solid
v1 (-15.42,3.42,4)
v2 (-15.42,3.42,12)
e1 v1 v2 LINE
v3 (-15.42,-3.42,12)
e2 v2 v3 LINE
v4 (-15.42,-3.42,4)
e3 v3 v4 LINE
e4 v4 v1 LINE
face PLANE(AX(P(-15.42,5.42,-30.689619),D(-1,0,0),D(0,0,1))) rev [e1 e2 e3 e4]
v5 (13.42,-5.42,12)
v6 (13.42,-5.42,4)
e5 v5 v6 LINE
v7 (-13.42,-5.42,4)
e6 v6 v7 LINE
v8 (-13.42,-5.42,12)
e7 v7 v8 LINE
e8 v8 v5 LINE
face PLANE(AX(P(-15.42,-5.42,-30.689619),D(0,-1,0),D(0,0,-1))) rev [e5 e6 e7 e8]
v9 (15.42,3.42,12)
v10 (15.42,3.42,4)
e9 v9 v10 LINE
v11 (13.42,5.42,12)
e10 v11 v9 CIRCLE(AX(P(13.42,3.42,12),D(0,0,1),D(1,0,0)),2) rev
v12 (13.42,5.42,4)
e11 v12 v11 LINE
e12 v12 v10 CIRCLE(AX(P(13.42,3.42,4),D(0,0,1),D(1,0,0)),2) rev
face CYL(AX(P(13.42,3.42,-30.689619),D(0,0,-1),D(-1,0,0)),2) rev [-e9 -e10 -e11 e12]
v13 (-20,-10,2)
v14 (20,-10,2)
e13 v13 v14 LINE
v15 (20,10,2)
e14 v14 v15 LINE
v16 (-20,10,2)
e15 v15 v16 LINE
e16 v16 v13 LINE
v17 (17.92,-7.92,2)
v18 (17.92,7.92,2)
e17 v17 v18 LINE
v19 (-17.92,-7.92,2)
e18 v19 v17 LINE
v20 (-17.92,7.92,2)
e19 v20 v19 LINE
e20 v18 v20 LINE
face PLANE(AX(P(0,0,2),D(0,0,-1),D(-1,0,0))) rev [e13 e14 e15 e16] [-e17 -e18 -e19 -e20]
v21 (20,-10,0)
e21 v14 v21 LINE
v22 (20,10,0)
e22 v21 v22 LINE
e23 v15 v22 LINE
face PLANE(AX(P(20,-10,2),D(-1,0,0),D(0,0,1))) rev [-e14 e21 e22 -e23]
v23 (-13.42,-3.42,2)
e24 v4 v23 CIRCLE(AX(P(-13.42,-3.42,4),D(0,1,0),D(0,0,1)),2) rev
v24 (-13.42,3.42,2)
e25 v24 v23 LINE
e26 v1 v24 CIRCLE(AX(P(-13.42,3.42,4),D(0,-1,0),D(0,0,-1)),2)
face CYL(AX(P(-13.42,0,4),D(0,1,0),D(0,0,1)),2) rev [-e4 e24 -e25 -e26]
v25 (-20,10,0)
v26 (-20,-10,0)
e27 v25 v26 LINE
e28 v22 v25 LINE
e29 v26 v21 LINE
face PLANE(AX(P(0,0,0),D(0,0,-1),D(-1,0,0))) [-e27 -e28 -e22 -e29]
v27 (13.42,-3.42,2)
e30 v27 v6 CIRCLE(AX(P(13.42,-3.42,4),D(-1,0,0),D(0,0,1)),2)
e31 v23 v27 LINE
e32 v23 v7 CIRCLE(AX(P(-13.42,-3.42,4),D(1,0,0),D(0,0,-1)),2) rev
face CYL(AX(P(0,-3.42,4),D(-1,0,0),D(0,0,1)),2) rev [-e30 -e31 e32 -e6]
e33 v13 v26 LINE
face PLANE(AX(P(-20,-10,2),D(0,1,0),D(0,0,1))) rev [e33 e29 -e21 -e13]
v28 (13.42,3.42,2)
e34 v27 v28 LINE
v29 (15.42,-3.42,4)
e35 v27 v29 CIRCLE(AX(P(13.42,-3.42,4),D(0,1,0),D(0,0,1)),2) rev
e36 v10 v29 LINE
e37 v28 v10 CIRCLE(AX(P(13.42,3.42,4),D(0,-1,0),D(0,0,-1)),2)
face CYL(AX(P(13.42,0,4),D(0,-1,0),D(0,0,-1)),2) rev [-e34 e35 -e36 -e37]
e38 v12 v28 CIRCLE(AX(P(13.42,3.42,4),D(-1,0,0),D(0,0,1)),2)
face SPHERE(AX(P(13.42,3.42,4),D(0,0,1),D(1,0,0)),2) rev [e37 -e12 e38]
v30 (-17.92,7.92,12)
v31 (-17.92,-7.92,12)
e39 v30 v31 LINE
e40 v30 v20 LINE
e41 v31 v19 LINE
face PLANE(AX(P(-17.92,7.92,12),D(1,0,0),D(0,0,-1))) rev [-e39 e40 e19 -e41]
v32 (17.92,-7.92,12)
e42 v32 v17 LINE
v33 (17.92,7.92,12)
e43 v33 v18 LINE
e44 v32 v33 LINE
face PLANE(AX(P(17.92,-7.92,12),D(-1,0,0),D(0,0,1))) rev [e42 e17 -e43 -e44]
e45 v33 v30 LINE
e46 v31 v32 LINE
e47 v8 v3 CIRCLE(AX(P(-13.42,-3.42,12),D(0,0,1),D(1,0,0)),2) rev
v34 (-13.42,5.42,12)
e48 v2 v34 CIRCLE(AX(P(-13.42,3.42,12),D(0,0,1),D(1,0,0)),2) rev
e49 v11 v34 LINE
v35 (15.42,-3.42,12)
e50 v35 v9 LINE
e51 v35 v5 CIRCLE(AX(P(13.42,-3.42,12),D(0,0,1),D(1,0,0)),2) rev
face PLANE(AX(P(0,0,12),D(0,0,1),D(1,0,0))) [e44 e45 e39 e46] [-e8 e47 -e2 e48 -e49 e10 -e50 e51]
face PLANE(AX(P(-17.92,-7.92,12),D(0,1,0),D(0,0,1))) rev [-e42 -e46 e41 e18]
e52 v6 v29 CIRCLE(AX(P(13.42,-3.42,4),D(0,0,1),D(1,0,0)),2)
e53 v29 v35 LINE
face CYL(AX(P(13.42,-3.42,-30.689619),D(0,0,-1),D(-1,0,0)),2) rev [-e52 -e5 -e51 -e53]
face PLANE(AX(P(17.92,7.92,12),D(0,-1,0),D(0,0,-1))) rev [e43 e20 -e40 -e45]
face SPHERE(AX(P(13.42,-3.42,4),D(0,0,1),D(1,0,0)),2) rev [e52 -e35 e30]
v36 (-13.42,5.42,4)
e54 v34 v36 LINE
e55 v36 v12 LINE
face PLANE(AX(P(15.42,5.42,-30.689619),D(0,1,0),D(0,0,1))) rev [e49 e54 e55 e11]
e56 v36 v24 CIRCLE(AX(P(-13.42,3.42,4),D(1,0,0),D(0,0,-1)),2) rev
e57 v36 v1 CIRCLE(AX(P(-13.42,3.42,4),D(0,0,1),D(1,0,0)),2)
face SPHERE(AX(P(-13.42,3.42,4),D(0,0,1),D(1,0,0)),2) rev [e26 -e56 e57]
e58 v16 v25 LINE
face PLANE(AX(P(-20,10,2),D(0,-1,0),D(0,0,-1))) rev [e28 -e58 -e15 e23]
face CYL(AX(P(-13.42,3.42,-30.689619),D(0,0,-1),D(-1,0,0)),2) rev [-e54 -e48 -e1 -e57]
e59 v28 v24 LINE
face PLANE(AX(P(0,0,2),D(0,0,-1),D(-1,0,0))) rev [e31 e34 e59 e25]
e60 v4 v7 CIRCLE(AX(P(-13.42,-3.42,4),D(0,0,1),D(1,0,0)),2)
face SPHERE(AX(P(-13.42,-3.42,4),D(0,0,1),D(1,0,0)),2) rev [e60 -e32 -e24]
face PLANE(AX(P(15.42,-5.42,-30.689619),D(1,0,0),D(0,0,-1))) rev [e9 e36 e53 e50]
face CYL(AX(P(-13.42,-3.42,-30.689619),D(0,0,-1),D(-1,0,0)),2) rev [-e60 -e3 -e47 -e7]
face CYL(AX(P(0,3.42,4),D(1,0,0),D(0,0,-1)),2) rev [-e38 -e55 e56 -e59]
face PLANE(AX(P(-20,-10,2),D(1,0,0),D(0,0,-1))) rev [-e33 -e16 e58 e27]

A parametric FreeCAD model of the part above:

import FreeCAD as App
import Part
import Sketcher


def edges_at(feature, points):
    """Names of the edges that pass closest to the given points."""
    edges = feature.Shape.Edges
    near = lambda p: min(range(len(edges)), key=lambda i: edges[i].distToShape(Part.Vertex(*p))[0])
    return sorted({f"Edge{near(p) + 1}" for p in points})


def add_polygon(sketch, points):
    """Adds a closed chain of lines whose ends are joined by coincident constraints."""
    first, n = sketch.GeometryCount, len(points)
    for a, b in zip(points, points[1:] + points[:1]):
        sketch.addGeometry(Part.LineSegment(App.Vector(*a, 0), App.Vector(*b, 0)), False)
    for i in range(n):
        sketch.addConstraint(Sketcher.Constraint("Coincident", first + i, 2, first + (i + 1) % n, 1))

doc = App.newDocument("Part")
body = doc.addObject("PartDesign::Body", "Body")

sketch1 = body.newObject("Sketcher::SketchObject", "Sketch")
sketch1.AttachmentSupport = (doc.getObject("XY_Plane"), [""])
sketch1.MapMode = "FlatFace"
add_polygon(sketch1, [(-20, 10), (-20, -10), (20, -10), (20, 10)])
sketch1.addConstraint([
    Sketcher.Constraint("Vertical", 0),
    Sketcher.Constraint("Horizontal", 1),
    Sketcher.Constraint("Vertical", 2),
    Sketcher.Constraint("Horizontal", 3),
    Sketcher.Constraint("Symmetric", 0, 2, 2, 2, -1, 1),
    Sketcher.Constraint("DistanceX", 1, 1, 1, 2, 40.0),
    Sketcher.Constraint("DistanceY", 0, 2, 0, 1, 20.0),
])
pad1 = body.newObject("PartDesign::Pad", "Pad")
pad1.Profile = sketch1
pad1.Length = 2

sketch2 = body.newObject("Sketcher::SketchObject", "Sketch001")
sketch2.AttachmentSupport = (doc.getObject("XY_Plane"), [""])
sketch2.MapMode = "FlatFace"
sketch2.AttachmentOffset = App.Placement(App.Vector(0, 0, 2), App.Rotation())
add_polygon(sketch2, [(-17.92, 7.92), (-17.92, -7.92), (17.92, -7.92), (17.92, 7.92)])
sketch2.addConstraint([
    Sketcher.Constraint("Vertical", 0),
    Sketcher.Constraint("Horizontal", 1),
    Sketcher.Constraint("Vertical", 2),
    Sketcher.Constraint("Horizontal", 3),
    Sketcher.Constraint("Symmetric", 0, 2, 2, 2, -1, 1),
    Sketcher.Constraint("DistanceX", 1, 1, 1, 2, 35.84),
    Sketcher.Constraint("DistanceY", 0, 2, 0, 1, 15.84),
])
pad2 = body.newObject("PartDesign::Pad", "Pad001")
pad2.Profile = sketch2
pad2.Length = 10

sketch3 = body.newObject("Sketcher::SketchObject", "Sketch002")
sketch3.AttachmentSupport = (doc.getObject("XY_Plane"), [""])
sketch3.MapMode = "FlatFace"
sketch3.AttachmentOffset = App.Placement(App.Vector(0, 0, 12), App.Rotation())
add_polygon(sketch3, [(-15.42, 5.42), (-15.42, -5.42), (15.42, -5.42), (15.42, 5.42)])
sketch3.addConstraint([
    Sketcher.Constraint("Vertical", 0),
    Sketcher.Constraint("Horizontal", 1),
    Sketcher.Constraint("Vertical", 2),
    Sketcher.Constraint("Horizontal", 3),
    Sketcher.Constraint("Symmetric", 0, 2, 2, 2, -1, 1),
    Sketcher.Constraint("DistanceX", 1, 1, 1, 2, 30.84),
    Sketcher.Constraint("DistanceY", 0, 2, 0, 1, 10.84),
])
pocket1 = body.newObject("PartDesign::Pocket", "Pocket")
pocket1.Profile = sketch3
pocket1.Length = 10
doc.recompute()

fillet = body.newObject("PartDesign::Fillet", "Fillet")
fillet.Base = (pocket1, edges_at(pocket1, [
    (-15.42, 0, 2),
    (-15.42, -5.42, 7),
    (0, -5.42, 2),
    (15.42, -5.42, 7),
    (15.42, 0, 2),
    (15.42, 5.42, 7),
    (0, 5.42, 2),
    (-15.42, 5.42, 7),
]))
fillet.Radius = 2

doc.recompute()
